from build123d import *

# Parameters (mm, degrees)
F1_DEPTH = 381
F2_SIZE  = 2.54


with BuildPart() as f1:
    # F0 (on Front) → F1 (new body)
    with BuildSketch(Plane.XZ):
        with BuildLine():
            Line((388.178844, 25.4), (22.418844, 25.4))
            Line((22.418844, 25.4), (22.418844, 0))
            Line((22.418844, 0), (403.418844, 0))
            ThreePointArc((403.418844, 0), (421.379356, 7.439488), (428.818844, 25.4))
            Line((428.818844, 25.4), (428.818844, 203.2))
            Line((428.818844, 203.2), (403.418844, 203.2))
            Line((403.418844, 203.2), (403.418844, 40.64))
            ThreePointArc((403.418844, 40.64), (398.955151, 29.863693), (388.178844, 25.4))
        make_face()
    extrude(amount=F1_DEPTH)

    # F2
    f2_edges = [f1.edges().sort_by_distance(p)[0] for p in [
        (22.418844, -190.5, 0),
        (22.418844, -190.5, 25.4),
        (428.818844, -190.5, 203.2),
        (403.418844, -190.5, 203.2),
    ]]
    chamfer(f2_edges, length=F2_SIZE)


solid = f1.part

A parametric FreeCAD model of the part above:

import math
import FreeCAD as App
import Part
import Sketcher
from FreeCAD import Vector
Q = App.Units.Quantity


def edges_at(feature, points):
    """Names of the edges that pass closest to the given points."""
    edges = feature.Shape.Edges
    near = lambda p: min(range(len(edges)), key=lambda i: edges[i].distToShape(Part.Vertex(*p))[0])
    return sorted({f"Edge{near(p) + 1}" for p in points})

doc = App.newDocument("Part")
body = doc.addObject("PartDesign::Body", "Body")

sketch1 = body.newObject("Sketcher::SketchObject", "Sketch")
sketch1.AttachmentSupport = (doc.getObject("XZ_Plane"), [""])
sketch1.MapMode = "FlatFace"
sketch1.addGeometry([
    Part.LineSegment(Vector(388, 25, 0), Vector(22, 25, 0)),
    Part.LineSegment(Vector(22, 25, 0), Vector(22, 0, 0)),
    Part.LineSegment(Vector(22, 0, 0), Vector(403, 0, 0)),
    Part.ArcOfCircle(Part.Circle(Vector(403, 25, 0), Vector(0, 0, 1), 25), math.radians(-90), math.radians(0)),
    Part.LineSegment(Vector(429, 25, 0), Vector(429, 203, 0)),
    Part.LineSegment(Vector(429, 203, 0), Vector(403, 203, 0)),
    Part.LineSegment(Vector(403, 203, 0), Vector(403, 41, 0)),
    Part.ArcOfCircle(Part.Circle(Vector(388, 41, 0), Vector(0, 0, 1), 15), math.radians(-90), math.radians(0)),
], False)
sketch1.addConstraint([
    Sketcher.Constraint("Coincident", 0, 2, 1, 1),
    Sketcher.Constraint("Coincident", 1, 2, 2, 1),
    Sketcher.Constraint("Tangent", 2, 2, 3, 1),
    Sketcher.Constraint("Tangent", 3, 2, 4, 1),
    Sketcher.Constraint("Coincident", 4, 2, 5, 1),
    Sketcher.Constraint("Coincident", 5, 2, 6, 1),
    Sketcher.Constraint("Tangent", 6, 2, 7, 2),
    Sketcher.Constraint("Tangent", 7, 1, 0, 1),
    Sketcher.Constraint("Horizontal", 0),
    Sketcher.Constraint("Vertical", 1),
    Sketcher.Constraint("Horizontal", 2),
    Sketcher.Constraint("Vertical", 4),
    Sketcher.Constraint("Horizontal", 5),
    Sketcher.Constraint("Vertical", 6),
    Sketcher.Constraint("PointOnObject", 1, 2, -1),
    Sketcher.Constraint("Horizontal", 3, 3, 0, 2),
    Sketcher.Constraint("Vertical", 2, 2, 5, 2),
    Sketcher.Constraint("Radius", 3, Q("1 in")),
    Sketcher.Constraint("Radius", 7, Q("0.6 in")),
    Sketcher.Constraint("DistanceX", 2, 1, 2, 2, Q("15 in")),
    Sketcher.Constraint("DistanceY", 4, 1, 4, 2, Q("7 in")),
    Sketcher.Constraint("DistanceX", -1, 1, 3, 3, Q("403.418843 mm")),
])
pad1 = body.newObject("PartDesign::Pad", "Pad")
pad1.Profile = sketch1
pad1.Length = Q("15 in")
doc.recompute()

chamfer = body.newObject("PartDesign::Chamfer", "Chamfer")
chamfer.Base = (pad1, edges_at(pad1, [
    (22.419, -190.5, 0),
    (22.419, -190.5, 25.4),
    (428.819, -190.5, 203.2),
    (403.419, -190.5, 203.2),
]))
chamfer.Size = Q("0.1 in")

doc.recompute()
